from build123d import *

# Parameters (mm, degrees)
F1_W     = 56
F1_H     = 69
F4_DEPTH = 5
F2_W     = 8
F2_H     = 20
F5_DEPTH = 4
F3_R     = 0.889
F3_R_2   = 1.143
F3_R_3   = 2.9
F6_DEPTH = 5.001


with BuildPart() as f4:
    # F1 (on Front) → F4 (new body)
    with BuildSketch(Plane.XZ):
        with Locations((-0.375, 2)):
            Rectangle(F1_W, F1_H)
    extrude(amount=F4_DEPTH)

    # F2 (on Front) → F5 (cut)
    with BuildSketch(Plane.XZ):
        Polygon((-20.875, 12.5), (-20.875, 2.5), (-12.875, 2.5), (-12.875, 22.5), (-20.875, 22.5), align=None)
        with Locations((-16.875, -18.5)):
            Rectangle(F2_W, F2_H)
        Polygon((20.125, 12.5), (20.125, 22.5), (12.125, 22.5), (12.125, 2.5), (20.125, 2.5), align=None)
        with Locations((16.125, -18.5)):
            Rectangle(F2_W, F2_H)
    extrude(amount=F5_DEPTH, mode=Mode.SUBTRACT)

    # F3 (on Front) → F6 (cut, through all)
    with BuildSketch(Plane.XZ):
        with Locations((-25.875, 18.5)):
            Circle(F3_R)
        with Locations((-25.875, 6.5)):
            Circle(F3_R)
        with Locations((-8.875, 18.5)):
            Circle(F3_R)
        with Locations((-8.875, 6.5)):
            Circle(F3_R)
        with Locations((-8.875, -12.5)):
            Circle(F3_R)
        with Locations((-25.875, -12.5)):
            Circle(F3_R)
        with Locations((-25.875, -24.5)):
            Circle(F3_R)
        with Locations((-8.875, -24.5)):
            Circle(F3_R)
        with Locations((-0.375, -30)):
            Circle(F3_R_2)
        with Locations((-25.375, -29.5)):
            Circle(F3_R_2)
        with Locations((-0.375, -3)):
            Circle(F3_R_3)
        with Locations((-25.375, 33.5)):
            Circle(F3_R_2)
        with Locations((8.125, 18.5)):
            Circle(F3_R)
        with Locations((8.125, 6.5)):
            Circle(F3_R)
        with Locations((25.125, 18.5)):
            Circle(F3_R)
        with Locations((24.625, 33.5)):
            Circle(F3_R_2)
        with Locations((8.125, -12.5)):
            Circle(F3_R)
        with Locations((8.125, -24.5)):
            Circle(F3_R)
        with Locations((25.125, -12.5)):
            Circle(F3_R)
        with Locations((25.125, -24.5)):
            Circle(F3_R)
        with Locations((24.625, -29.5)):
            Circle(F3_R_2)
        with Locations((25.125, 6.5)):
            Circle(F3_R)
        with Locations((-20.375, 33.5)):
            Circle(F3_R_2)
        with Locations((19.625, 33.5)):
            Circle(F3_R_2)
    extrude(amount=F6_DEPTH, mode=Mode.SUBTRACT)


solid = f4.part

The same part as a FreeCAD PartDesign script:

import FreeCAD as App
import Part
import Sketcher

V = App.Vector


def add_polygon(sketch, points):
    """Adds a closed chain of lines whose ends are joined by coincident constraints."""
    first, n = sketch.GeometryCount, len(points)
    for a, b in zip(points, points[1:] + points[:1]):
        sketch.addGeometry(Part.LineSegment(App.Vector(*a, 0), App.Vector(*b, 0)), False)
    for i in range(n):
        sketch.addConstraint(Sketcher.Constraint("Coincident", first + i, 2, first + (i + 1) % n, 1))

doc = App.newDocument("Part")
body = doc.addObject("PartDesign::Body", "Body")

sketch1 = doc.addObject("Sketcher::SketchObject", "Sketch")
body.addObject(sketch1)
sketch1.AttachmentSupport = (doc.XZ_Plane, [""])
sketch1.MapMode = "FlatFace"
add_polygon(sketch1, [(-28.375, 36.5), (-28.375, -32.5), (27.625, -32.5), (27.625, 36.5)])
sketch1.addConstraint([
    Sketcher.Constraint("Vertical", 0),
    Sketcher.Constraint("Horizontal", 1),
    Sketcher.Constraint("Vertical", 2),
    Sketcher.Constraint("Horizontal", 3),
    Sketcher.Constraint("DistanceX", 1, 1, 1, 2, 56.0),
    Sketcher.Constraint("DistanceY", 0, 2, 0, 1, 69.0),
    Sketcher.Constraint("DistanceY", 0, 2, -1, 1, 32.5),
    Sketcher.Constraint("DistanceX", 0, 2, -1, 1, 28.375),
])
pad1 = doc.addObject("PartDesign::Pad", "Pad")
body.addObject(pad1)
pad1.Profile = sketch1
pad1.Length = 5

sketch2 = doc.addObject("Sketcher::SketchObject", "Sketch001")
body.addObject(sketch2)
sketch2.AttachmentSupport = (doc.XZ_Plane, [""])
sketch2.MapMode = "FlatFace"
add_polygon(sketch2, [(-20.875, 2.5), (-12.875, 2.5), (-12.875, 22.5), (-20.875, 22.5)])
add_polygon(sketch2, [(-20.875, -8.5), (-20.875, -28.5), (-12.875, -28.5), (-12.875, -8.5)])
add_polygon(sketch2, [(20.125, 22.5), (12.125, 22.5), (12.125, 2.5), (20.125, 2.5)])
add_polygon(sketch2, [(12.125, -8.5), (12.125, -28.5), (20.125, -28.5), (20.125, -8.5)])
sketch2.addConstraint([
    Sketcher.Constraint("Horizontal", 0),
    Sketcher.Constraint("Vertical", 1),
    Sketcher.Constraint("Horizontal", 2),
    Sketcher.Constraint("Vertical", 3),
    Sketcher.Constraint("Vertical", 4),
    Sketcher.Constraint("Horizontal", 5),
    Sketcher.Constraint("Vertical", 6),
    Sketcher.Constraint("Horizontal", 7),
    Sketcher.Constraint("Horizontal", 8),
    Sketcher.Constraint("Vertical", 9),
    Sketcher.Constraint("Horizontal", 10),
    Sketcher.Constraint("Vertical", 11),
    Sketcher.Constraint("Vertical", 12),
    Sketcher.Constraint("Horizontal", 13),
    Sketcher.Constraint("Vertical", 14),
    Sketcher.Constraint("Horizontal", 15),
    Sketcher.Constraint("Horizontal", 2, 2, 8, 2),
    Sketcher.Constraint("Horizontal", 3, 2, 9, 2),
    Sketcher.Constraint("Horizontal", 5, 2, 12, 2),
    Sketcher.Constraint("Horizontal", 7, 2, 14, 2),
    Sketcher.Constraint("Vertical", 3, 2, 4, 2),
    Sketcher.Constraint("Vertical", 1, 2, 5, 2),
    Sketcher.Constraint("Vertical", 9, 2, 12, 2),
    Sketcher.Constraint("Vertical", 11, 2, 13, 2),
    Sketcher.Constraint("Equal", 7, 8),
    Sketcher.Constraint("Equal", 3, 4),
    Sketcher.Constraint("DistanceX", 0, 1, 0, 2, 8.0),
    Sketcher.Constraint("DistanceY", 1, 1, 1, 2, 20.0),
    Sketcher.Constraint("DistanceY", 4, 2, 3, 2, 31.0),
    Sketcher.Constraint("DistanceX", 1, 2, 8, 2, 25.0),
    Sketcher.Constraint("DistanceY", -1, 1, 0, 2, 2.5),
    Sketcher.Constraint("DistanceX", 0, 2, -1, 1, 12.875),
])
pocket1 = doc.addObject("PartDesign::Pocket", "Pocket")
body.addObject(pocket1)
pocket1.Profile = sketch2
pocket1.Length = 4
pocket1.Reversed = True

sketch3 = doc.addObject("Sketcher::SketchObject", "Sketch002")
body.addObject(sketch3)
sketch3.AttachmentSupport = (doc.XZ_Plane, [""])
sketch3.MapMode = "FlatFace"
sketch3.addGeometry([
    Part.Circle(V(-25.875, 18.5, 0), V(0, 0, 1), 0.889),
    Part.Circle(V(-25.875, 6.5, 0), V(0, 0, 1), 0.889),
    Part.Circle(V(-8.875, 18.5, 0), V(0, 0, 1), 0.889),
    Part.Circle(V(-8.875, 6.5, 0), V(0, 0, 1), 0.889),
    Part.Circle(V(-8.875, -12.5, 0), V(0, 0, 1), 0.889),
    Part.Circle(V(-25.875, -12.5, 0), V(0, 0, 1), 0.889),
    Part.Circle(V(-25.875, -24.5, 0), V(0, 0, 1), 0.889),
    Part.Circle(V(-8.875, -24.5, 0), V(0, 0, 1), 0.889),
    Part.Circle(V(-0.375, -30, 0), V(0, 0, 1), 1.143),
    Part.Circle(V(-25.375, -29.5, 0), V(0, 0, 1), 1.143),
    Part.Circle(V(-0.375, -3, 0), V(0, 0, 1), 2.9),
    Part.Circle(V(-25.375, 33.5, 0), V(0, 0, 1), 1.143),
    Part.Circle(V(8.125, 18.5, 0), V(0, 0, 1), 0.889),
    Part.Circle(V(8.125, 6.5, 0), V(0, 0, 1), 0.889),
    Part.Circle(V(25.125, 18.5, 0), V(0, 0, 1), 0.889),
    Part.Circle(V(24.625, 33.5, 0), V(0, 0, 1), 1.143),
    Part.Circle(V(8.125, -12.5, 0), V(0, 0, 1), 0.889),
    Part.Circle(V(8.125, -24.5, 0), V(0, 0, 1), 0.889),
    Part.Circle(V(25.125, -12.5, 0), V(0, 0, 1), 0.889),
    Part.Circle(V(25.125, -24.5, 0), V(0, 0, 1), 0.889),
    Part.Circle(V(24.625, -29.5, 0), V(0, 0, 1), 1.143),
    Part.Circle(V(25.125, 6.5, 0), V(0, 0, 1), 0.889),
    Part.Circle(V(-20.375, 33.5, 0), V(0, 0, 1), 1.143),
    Part.Circle(V(19.625, 33.5, 0), V(0, 0, 1), 1.143),
], False)
sketch3.addConstraint([
    Sketcher.Constraint("Equal", 0, 1),
    Sketcher.Constraint("Equal", 1, 2),
    Sketcher.Constraint("Equal", 2, 3),
    Sketcher.Constraint("Equal", 3, 4),
    Sketcher.Constraint("Equal", 4, 5),
    Sketcher.Constraint("Equal", 5, 6),
    Sketcher.Constraint("Equal", 6, 7),
    Sketcher.Constraint("Equal", 8, 9),
    Sketcher.Constraint("Equal", 9, 11),
    Sketcher.Constraint("Equal", 7, 12),
    Sketcher.Constraint("Equal", 12, 13),
    Sketcher.Constraint("Equal", 13, 14),
    Sketcher.Constraint("Equal", 11, 15),
    Sketcher.Constraint("Equal", 14, 16),
    Sketcher.Constraint("Equal", 16, 17),
    Sketcher.Constraint("Equal", 17, 18),
    Sketcher.Constraint("Equal", 18, 19),
    Sketcher.Constraint("Equal", 15, 20),
    Sketcher.Constraint("Equal", 19, 21),
    Sketcher.Constraint("Equal", 20, 22),
    Sketcher.Constraint("Equal", 22, 23),
    Sketcher.Constraint("Horizontal", 0, 3, 2, 3),
    Sketcher.Constraint("Horizontal", 1, 3, 3, 3),
    Sketcher.Constraint("Horizontal", 4, 3, 5, 3),
    Sketcher.Constraint("Horizontal", 6, 3, 7, 3),
    Sketcher.Constraint("Horizontal", 2, 3, 12, 3),
    Sketcher.Constraint("Horizontal", 3, 3, 13, 3),
    Sketcher.Constraint("Horizontal", 12, 3, 14, 3),
    Sketcher.Constraint("Horizontal", 11, 3, 15, 3),
    Sketcher.Constraint("Horizontal", 5, 3, 16, 3),
    Sketcher.Constraint("Horizontal", 7, 3, 17, 3),
    Sketcher.Constraint("Horizontal", 16, 3, 18, 3),
    Sketcher.Constraint("Horizontal", 17, 3, 19, 3),
    Sketcher.Constraint("Horizontal", 9, 3, 20, 3),
    Sketcher.Constraint("Horizontal", 13, 3, 21, 3),
    Sketcher.Constraint("Horizontal", 15, 3, 22, 3),
    Sketcher.Constraint("Horizontal", 22, 3, 23, 3),
    Sketcher.Constraint("Vertical", 0, 3, 1, 3),
    Sketcher.Constraint("Vertical", 2, 3, 3, 3),
    Sketcher.Constraint("Vertical", 3, 3, 4, 3),
    Sketcher.Constraint("Vertical", 1, 3, 5, 3),
    Sketcher.Constraint("Vertical", 5, 3, 6, 3),
    Sketcher.Constraint("Vertical", 4, 3, 7, 3),
    Sketcher.Constraint("Vertical", 8, 3, 10, 3),
    Sketcher.Constraint("Vertical", 9, 3, 11, 3),
    Sketcher.Constraint("Vertical", 12, 3, 13, 3),
    Sketcher.Constraint("Vertical", 13, 3, 16, 3),
    Sketcher.Constraint("Vertical", 16, 3, 17, 3),
    Sketcher.Constraint("Vertical", 14, 3, 18, 3),
    Sketcher.Constraint("Vertical", 18, 3, 19, 3),
    Sketcher.Constraint("Vertical", 15, 3, 20, 3),
    Sketcher.Constraint("Vertical", 19, 3, 21, 3),
    Sketcher.Constraint("Diameter", 10, 5.8),
    Sketcher.Constraint("Diameter", 0, 1.778),
    Sketcher.Constraint("Diameter", 8, 2.286),
    Sketcher.Constraint("DistanceY", 8, 3, -1, 1, 30.0),
    Sketcher.Constraint("DistanceY", 10, 3, -1, 1, 3.0),
    Sketcher.Constraint("DistanceY", 1, 3, 0, 3, 12.0),
    Sketcher.Constraint("DistanceX", 0, 3, 2, 3, 17.0),
    Sketcher.Constraint("DistanceY", 4, 3, 3, 3, 19.0),
    Sketcher.Constraint("DistanceY", 6, 3, 5, 3, 12.0),
    Sketcher.Constraint("DistanceY", 9, 3, 6, 3, 5.0),
    Sketcher.Constraint("DistanceX", 9, 3, 8, 3, 25.0),
    Sketcher.Constraint("DistanceY", 0, 3, 11, 3, 15.0),
    Sketcher.Constraint("DistanceX", 2, 3, 12, 3, 17.0),
    Sketcher.Constraint("DistanceX", 12, 3, 14, 3, 17.0),
    Sketcher.Constraint("DistanceX", 8, 3, 20, 3, 25.0),
    Sketcher.Constraint("DistanceX", 11, 3, 22, 3, 5.0),
    Sketcher.Constraint("DistanceX", 23, 3, 15, 3, 5.0),
    Sketcher.Constraint("DistanceY", -1, 1, 0, 3, 18.5),
    Sketcher.Constraint("DistanceX", 7, 3, 8, 3, 8.5),
    Sketcher.Constraint("DistanceX", 0, 3, -1, 1, 25.875),
])
pocket2 = doc.addObject("PartDesign::Pocket", "Pocket001")
body.addObject(pocket2)
pocket2.Profile = sketch3
pocket2.Type = "ThroughAll"
pocket2.Reversed = True

doc.recompute()
